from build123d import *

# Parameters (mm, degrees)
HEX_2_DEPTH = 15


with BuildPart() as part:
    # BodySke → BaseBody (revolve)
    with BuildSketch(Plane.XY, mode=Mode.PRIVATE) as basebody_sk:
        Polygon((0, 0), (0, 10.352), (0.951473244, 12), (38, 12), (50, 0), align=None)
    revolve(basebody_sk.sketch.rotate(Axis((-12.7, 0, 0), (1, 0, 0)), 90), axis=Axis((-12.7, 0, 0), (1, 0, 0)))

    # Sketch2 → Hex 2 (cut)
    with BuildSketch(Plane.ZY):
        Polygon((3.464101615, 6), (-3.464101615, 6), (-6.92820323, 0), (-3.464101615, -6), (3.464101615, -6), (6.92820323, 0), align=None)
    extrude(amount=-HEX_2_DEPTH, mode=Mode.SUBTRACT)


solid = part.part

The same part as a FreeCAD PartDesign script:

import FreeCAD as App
import Part
import Sketcher
from FreeCAD import Vector
Q = App.Units.Quantity


def add_polygon(sketch, points):
    """Adds a closed chain of lines whose ends are joined by coincident constraints."""
    first, n = sketch.GeometryCount, len(points)
    for a, b in zip(points, points[1:] + points[:1]):
        sketch.addGeometry(Part.LineSegment(App.Vector(*a, 0), App.Vector(*b, 0)), False)
    for i in range(n):
        sketch.addConstraint(Sketcher.Constraint("Coincident", first + i, 2, first + (i + 1) % n, 1))

doc = App.newDocument("Part")
body = doc.addObject("PartDesign::Body", "Body")

sketch1 = body.newObject("Sketcher::SketchObject", "Sketch")
sketch1.AttachmentSupport = (doc.getObject("XY_Plane"), [""])
sketch1.MapMode = "FlatFace"
add_polygon(sketch1, [(0, 10.4), (0, 0), (50, 0), (38, 12), (1, 12)])
sketch1.addConstraint(Sketcher.Constraint("Vertical", 0))
sketch1.addConstraint(Sketcher.Constraint("Horizontal", 1))
sketch1.addConstraint(Sketcher.Constraint("Horizontal", 3))
sketch1.addConstraint(Sketcher.Constraint("Coincident", 0, 2, -1, 1))
sketch1.addConstraint(Sketcher.Constraint("DistanceX", 1, 1, 1, 2, 50.0))
sketch1.addConstraint(Sketcher.Constraint("Angle", 2, Q("135 deg")))
sketch1.addConstraint(Sketcher.Constraint("Angle", 4, Q("-120 deg")))
sketch1.addConstraint(Sketcher.Constraint("DistanceX", -1, 1, 2, 2, 38.0))
sketch1.addConstraint(Sketcher.Constraint("DistanceY", 0, 2, 0, 1, 10.352))
revolution = body.newObject("PartDesign::Revolution", "Revolution")
revolution.Profile = sketch1
revolution.ReferenceAxis = (sketch1, ["H_Axis"])
revolution.Angle = 360

sketch2 = body.newObject("Sketcher::SketchObject", "Sketch001")
sketch2.AttachmentSupport = (doc.getObject("YZ_Plane"), [""])
sketch2.MapMode = "FlatFace"
add_polygon(sketch2, [(6, 3), (6, -3), (0, -7), (-6, -3), (-6, 3), (0, 7)])
sketch2.addConstraint(Sketcher.Constraint("Vertical", 0))
sketch2.addConstraint(Sketcher.Constraint("Vertical", 3))
sketch2.addConstraint(Sketcher.Constraint("Symmetric", 0, 2, 3, 2, -1, 1))
sketch2.addConstraint(Sketcher.Constraint("Symmetric", 1, 2, 4, 2, -1, 1))
sketch2.addConstraint(Sketcher.Constraint("PointOnObject", 1, 2, -2))
sketch2.addConstraint(Sketcher.Constraint("Parallel", 2, 5))
sketch2.addConstraint(Sketcher.Constraint("Horizontal", 0, 2, 2, 2))
sketch2.addConstraint(Sketcher.Constraint("Angle", 1, Q("-150 deg")))
sketch2.addConstraint(Sketcher.Constraint("DistanceX", -1, 1, 0, 2, 6.0))
sketch2.addConstraint(Sketcher.Constraint("DistanceY", 0, 2, -1, 1, 3.464102))
pocket1 = body.newObject("PartDesign::Pocket", "Pocket")
pocket1.Profile = sketch2
pocket1.Length = 15
pocket1.Reversed = True

doc.recompute()
